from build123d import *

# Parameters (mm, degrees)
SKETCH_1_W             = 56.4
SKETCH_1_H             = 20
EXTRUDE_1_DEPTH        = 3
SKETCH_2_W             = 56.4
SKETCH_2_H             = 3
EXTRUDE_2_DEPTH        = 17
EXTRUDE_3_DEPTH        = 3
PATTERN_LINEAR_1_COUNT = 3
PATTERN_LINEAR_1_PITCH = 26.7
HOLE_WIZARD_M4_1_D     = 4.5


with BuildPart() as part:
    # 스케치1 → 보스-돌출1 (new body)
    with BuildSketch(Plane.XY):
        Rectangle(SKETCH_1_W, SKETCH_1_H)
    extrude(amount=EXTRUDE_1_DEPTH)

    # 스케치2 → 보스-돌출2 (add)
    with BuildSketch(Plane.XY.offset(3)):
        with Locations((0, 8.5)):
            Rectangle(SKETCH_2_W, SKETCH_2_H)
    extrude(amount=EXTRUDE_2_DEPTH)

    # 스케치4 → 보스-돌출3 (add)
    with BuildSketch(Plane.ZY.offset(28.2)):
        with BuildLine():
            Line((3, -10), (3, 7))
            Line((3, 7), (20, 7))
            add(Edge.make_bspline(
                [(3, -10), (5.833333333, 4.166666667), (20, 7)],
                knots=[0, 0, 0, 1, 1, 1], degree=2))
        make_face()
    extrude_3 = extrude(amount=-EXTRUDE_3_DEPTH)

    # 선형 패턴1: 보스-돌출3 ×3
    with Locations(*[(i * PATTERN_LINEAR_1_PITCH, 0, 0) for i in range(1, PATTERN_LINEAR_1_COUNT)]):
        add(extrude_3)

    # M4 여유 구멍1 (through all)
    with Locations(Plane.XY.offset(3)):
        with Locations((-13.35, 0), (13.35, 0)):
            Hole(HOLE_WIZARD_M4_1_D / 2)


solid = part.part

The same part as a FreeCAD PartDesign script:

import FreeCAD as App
import Part
import Sketcher
from FreeCAD import Vector
Q = App.Units.Quantity


def add_polygon(sketch, points):
    """Adds a closed chain of lines whose ends are joined by coincident constraints."""
    first, n = sketch.GeometryCount, len(points)
    for a, b in zip(points, points[1:] + points[:1]):
        sketch.addGeometry(Part.LineSegment(App.Vector(*a, 0), App.Vector(*b, 0)), False)
    for i in range(n):
        sketch.addConstraint(Sketcher.Constraint("Coincident", first + i, 2, first + (i + 1) % n, 1))

doc = App.newDocument("Part")
body = doc.addObject("PartDesign::Body", "Body")

# Sketch on XY plane
sketch1 = doc.addObject("Sketcher::SketchObject", "Sketch")
body.addObject(sketch1)
sketch1.AttachmentSupport = (doc.XY_Plane, [""])
sketch1.MapMode = "FlatFace"
add_polygon(sketch1, [(-28, 10), (-28, -10), (28, -10), (28, 10)])  # lines 0-3
sketch1.addConstraint(Sketcher.Constraint("Vertical", 0))
sketch1.addConstraint(Sketcher.Constraint("Horizontal", 1))
sketch1.addConstraint(Sketcher.Constraint("Vertical", 2))
sketch1.addConstraint(Sketcher.Constraint("Horizontal", 3))
sketch1.addConstraint(Sketcher.Constraint("Symmetric", 0, 2, 2, 2, -1, 1))
sketch1.addConstraint(Sketcher.Constraint("DistanceY", 0, 2, 0, 1, Q("20 mm")))
sketch1.addConstraint(Sketcher.Constraint("DistanceX", 1, 1, 1, 2, Q("56.4 mm")))
pad1 = doc.addObject("PartDesign::Pad", "Pad")
body.addObject(pad1)
pad1.Profile = sketch1
pad1.Length = 3

# Sketch on XY plane
sketch2 = doc.addObject("Sketcher::SketchObject", "Sketch001")
body.addObject(sketch2)
sketch2.AttachmentSupport = (doc.XY_Plane, [""])
sketch2.MapMode = "FlatFace"
sketch2.AttachmentOffset = App.Placement(Vector(0, 0, 3), App.Rotation())
add_polygon(sketch2, [(-28.2, 10), (-28.2, 7), (28.2, 7), (28.2, 10)])  # lines 0-3
sketch2.addConstraint(Sketcher.Constraint("Vertical", 0))
sketch2.addConstraint(Sketcher.Constraint("Horizontal", 1))
sketch2.addConstraint(Sketcher.Constraint("Vertical", 2))
sketch2.addConstraint(Sketcher.Constraint("Horizontal", 3))
sketch2.addConstraint(Sketcher.Constraint("DistanceY", 0, 2, 0, 1, Q("3 mm")))
sketch2.addConstraint(Sketcher.Constraint("DistanceX", 1, 1, 1, 2, Q("56.4 mm")))
sketch2.addConstraint(Sketcher.Constraint("DistanceY", -1, 1, 0, 2, Q("7 mm")))
sketch2.addConstraint(Sketcher.Constraint("DistanceX", 0, 2, -1, 1, Q("28.2 mm")))
pad2 = doc.addObject("PartDesign::Pad", "Pad001")
body.addObject(pad2)
pad2.Profile = sketch2
pad2.Length = 17

# Sketch on YZ plane
sketch3 = doc.addObject("Sketcher::SketchObject", "Sketch002")
body.addObject(sketch3)
sketch3.AttachmentSupport = (doc.YZ_Plane, [""])
sketch3.MapMode = "FlatFace"
sketch3.AttachmentOffset = App.Placement(Vector(0, 0, -28.2), App.Rotation())
sketch3.addGeometry(Part.LineSegment(Vector(7, 3, 0), Vector(-10, 3, 0)), False)
sketch3.addGeometry(Part.BSplineCurve([Vector(-10, 3, 0), Vector(4.166667, 5.833333, 0), Vector(7, 20, 0)], [3, 3], [0, 1], False, 2, [1, 1, 1], False), False)
sketch3.addGeometry(Part.LineSegment(Vector(7, 20, 0), Vector(7, 3, 0)), False)
sketch3.addConstraint(Sketcher.Constraint("Block", 1))
sketch3.addConstraint(Sketcher.Constraint("Coincident", 0, 2, 1, 1))
sketch3.addConstraint(Sketcher.Constraint("Coincident", 1, 2, 2, 1))
sketch3.addConstraint(Sketcher.Constraint("Coincident", 2, 2, 0, 1))
sketch3.addConstraint(Sketcher.Constraint("Horizontal", 0))
sketch3.addConstraint(Sketcher.Constraint("Vertical", 2))
pad3 = doc.addObject("PartDesign::Pad", "Pad002")
body.addObject(pad3)
pad3.Profile = sketch3
pad3.Length = 3
doc.recompute()

linearpattern = doc.addObject("PartDesign::LinearPattern", "LinearPattern")
body.addObject(linearpattern)
linearpattern.Originals = [pad3]
linearpattern.Direction = (doc.X_Axis, [""])
linearpattern.Mode = "offset"
linearpattern.Offset = 26.7
linearpattern.Occurrences = 3
body.Tip = linearpattern

# Sketch on XY plane
sketch4 = doc.addObject("Sketcher::SketchObject", "Sketch003")
body.addObject(sketch4)
sketch4.AttachmentSupport = (doc.XY_Plane, [""])
sketch4.MapMode = "FlatFace"
sketch4.AttachmentOffset = App.Placement(Vector(0, 0, 3), App.Rotation())
sketch4.addGeometry(Part.Circle(Vector(-13.3, 0, 0), Vector(0, 0, 1), 2.2), False)
sketch4.addGeometry(Part.Circle(Vector(13.3, 0, 0), Vector(0, 0, 1), 2.2), False)
sketch4.addConstraint(Sketcher.Constraint("Equal", 0, 1))
sketch4.addConstraint(Sketcher.Constraint("Symmetric", 0, 3, 1, 3, -1, 1))
sketch4.addConstraint(Sketcher.Constraint("PointOnObject", 0, 3, -1))
sketch4.addConstraint(Sketcher.Constraint("Diameter", 0, Q("4.5 mm")))
sketch4.addConstraint(Sketcher.Constraint("DistanceX", 0, 3, 1, 3, Q("26.7 mm")))
doc.recompute()
hole = doc.addObject("PartDesign::Hole", "Hole")
body.addObject(hole)
hole.Profile = sketch4
hole.ThreadType = "None"
hole.Diameter = 4.5
hole.DepthType = "ThroughAll"

doc.recompute()
